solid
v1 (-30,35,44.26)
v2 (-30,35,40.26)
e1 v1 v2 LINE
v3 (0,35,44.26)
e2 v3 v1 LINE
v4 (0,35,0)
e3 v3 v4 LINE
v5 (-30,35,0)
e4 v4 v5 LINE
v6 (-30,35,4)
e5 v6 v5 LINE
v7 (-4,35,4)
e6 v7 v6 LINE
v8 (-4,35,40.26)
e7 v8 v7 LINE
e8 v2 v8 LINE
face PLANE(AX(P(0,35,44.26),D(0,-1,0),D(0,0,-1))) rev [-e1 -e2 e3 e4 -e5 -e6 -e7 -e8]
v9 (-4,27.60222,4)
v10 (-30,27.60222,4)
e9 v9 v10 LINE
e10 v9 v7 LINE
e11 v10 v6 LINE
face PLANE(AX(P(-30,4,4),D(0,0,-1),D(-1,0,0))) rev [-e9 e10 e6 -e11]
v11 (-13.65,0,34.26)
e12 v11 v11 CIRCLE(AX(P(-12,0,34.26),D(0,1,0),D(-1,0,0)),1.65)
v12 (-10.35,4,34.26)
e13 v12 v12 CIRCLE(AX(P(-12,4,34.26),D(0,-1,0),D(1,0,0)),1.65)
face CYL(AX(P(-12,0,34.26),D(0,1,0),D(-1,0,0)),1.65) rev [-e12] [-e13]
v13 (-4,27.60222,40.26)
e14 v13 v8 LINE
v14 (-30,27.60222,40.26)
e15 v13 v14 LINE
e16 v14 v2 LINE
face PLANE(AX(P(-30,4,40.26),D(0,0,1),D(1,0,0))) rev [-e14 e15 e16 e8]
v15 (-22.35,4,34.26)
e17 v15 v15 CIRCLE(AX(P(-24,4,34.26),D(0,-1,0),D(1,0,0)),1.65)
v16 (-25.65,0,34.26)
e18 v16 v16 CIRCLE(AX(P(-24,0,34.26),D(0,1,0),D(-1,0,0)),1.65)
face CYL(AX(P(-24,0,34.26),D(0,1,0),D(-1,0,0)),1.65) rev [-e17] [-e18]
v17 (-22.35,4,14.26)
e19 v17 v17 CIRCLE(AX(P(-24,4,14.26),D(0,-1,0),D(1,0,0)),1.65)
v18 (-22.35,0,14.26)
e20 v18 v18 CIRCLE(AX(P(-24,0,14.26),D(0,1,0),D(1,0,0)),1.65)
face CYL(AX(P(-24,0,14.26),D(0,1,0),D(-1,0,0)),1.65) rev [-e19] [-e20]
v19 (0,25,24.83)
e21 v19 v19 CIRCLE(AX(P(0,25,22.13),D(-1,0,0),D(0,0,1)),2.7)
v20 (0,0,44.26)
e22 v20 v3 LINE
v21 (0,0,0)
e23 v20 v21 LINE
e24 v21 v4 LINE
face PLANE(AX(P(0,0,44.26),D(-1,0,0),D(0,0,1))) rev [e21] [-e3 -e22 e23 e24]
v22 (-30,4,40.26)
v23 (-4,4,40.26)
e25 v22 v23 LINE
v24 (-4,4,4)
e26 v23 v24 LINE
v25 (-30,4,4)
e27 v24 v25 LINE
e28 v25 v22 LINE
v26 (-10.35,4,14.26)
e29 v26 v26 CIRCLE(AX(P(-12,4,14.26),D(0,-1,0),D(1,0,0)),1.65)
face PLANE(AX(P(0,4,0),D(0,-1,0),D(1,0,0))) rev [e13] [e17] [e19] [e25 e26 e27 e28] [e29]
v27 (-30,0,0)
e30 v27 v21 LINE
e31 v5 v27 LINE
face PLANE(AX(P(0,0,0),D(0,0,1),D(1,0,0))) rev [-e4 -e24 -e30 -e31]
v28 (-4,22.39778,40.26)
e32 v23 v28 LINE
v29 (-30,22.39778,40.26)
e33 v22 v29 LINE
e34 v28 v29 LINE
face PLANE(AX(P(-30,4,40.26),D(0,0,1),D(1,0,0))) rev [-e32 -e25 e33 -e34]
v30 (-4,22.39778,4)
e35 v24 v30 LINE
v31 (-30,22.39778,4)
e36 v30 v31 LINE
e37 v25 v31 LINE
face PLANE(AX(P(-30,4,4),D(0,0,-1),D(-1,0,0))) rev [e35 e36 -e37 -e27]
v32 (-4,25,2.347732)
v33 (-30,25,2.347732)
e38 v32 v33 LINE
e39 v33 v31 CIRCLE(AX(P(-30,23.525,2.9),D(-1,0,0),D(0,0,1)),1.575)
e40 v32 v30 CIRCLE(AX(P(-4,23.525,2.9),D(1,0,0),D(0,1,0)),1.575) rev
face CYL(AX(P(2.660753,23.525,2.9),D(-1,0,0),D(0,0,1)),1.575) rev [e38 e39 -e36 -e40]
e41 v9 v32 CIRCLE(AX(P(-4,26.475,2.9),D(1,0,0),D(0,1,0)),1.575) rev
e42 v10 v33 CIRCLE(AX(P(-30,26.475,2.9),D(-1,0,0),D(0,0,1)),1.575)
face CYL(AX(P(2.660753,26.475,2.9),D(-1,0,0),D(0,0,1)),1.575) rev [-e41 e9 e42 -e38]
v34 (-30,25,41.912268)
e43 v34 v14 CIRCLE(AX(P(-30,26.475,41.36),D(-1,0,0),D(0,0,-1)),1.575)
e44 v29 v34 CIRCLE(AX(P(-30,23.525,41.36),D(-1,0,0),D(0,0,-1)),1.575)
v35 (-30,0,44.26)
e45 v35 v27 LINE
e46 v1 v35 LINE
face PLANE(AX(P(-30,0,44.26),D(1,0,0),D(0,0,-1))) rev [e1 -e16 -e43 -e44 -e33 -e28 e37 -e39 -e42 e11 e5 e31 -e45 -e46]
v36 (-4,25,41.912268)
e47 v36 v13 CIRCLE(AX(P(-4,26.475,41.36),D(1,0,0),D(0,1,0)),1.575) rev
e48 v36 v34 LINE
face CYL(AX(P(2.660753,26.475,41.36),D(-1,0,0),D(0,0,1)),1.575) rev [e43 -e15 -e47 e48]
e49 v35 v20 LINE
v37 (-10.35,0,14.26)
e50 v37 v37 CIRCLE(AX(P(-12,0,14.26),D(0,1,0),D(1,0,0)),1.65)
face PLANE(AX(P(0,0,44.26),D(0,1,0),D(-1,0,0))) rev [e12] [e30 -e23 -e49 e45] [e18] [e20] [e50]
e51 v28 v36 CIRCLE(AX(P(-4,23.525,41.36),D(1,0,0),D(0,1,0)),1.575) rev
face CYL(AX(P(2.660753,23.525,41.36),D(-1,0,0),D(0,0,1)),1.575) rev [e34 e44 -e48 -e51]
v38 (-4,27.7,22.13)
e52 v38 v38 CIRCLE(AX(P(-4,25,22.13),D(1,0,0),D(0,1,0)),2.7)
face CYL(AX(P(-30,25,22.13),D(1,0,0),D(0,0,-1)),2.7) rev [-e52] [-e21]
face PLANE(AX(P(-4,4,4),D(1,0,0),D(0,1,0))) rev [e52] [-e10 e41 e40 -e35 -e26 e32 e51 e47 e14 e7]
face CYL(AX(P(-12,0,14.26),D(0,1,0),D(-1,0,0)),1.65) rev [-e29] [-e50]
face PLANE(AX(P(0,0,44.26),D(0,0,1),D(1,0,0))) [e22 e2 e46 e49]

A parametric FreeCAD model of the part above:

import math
import FreeCAD as App
import Part
import Sketcher

V = App.Vector
Q = App.Units.Quantity


def add_polygon(sketch, points):
    """Adds a closed chain of lines whose ends are joined by coincident constraints."""
    first, n = sketch.GeometryCount, len(points)
    for a, b in zip(points, points[1:] + points[:1]):
        sketch.addGeometry(Part.LineSegment(App.Vector(*a, 0), App.Vector(*b, 0)), False)
    for i in range(n):
        sketch.addConstraint(Sketcher.Constraint("Coincident", first + i, 2, first + (i + 1) % n, 1))

doc = App.newDocument("Part")
body = doc.addObject("PartDesign::Body", "Body")

sketch1 = body.newObject("Sketcher::SketchObject", "Sketch")
sketch1.AttachmentSupport = (doc.getObject("XY_Plane"), [""])
sketch1.MapMode = "FlatFace"
add_polygon(sketch1, [(-30, 35), (-30, 0), (0, 0), (0, 35)])
sketch1.addConstraint([
    Sketcher.Constraint("Vertical", 0),
    Sketcher.Constraint("Horizontal", 1),
    Sketcher.Constraint("Vertical", 2),
    Sketcher.Constraint("Horizontal", 3),
    Sketcher.Constraint("Coincident", 1, 2, -1, 1),
    Sketcher.Constraint("DistanceX", 1, 1, 1, 2, Q("30 mm")),
    Sketcher.Constraint("DistanceY", 0, 2, 0, 1, Q("35 mm")),
])
pad1 = body.newObject("PartDesign::Pad", "Pad")
pad1.Profile = sketch1
pad1.Length = 44.26

sketch2 = body.newObject("Sketcher::SketchObject", "Sketch001")
sketch2.AttachmentSupport = (doc.getObject("XZ_Plane"), [""])
sketch2.MapMode = "FlatFace"
sketch2.AttachmentOffset = App.Placement(V(0, 0, -35), App.Rotation())
add_polygon(sketch2, [(-30, 4), (-30, 40), (-4, 40), (-4, 4)])
sketch2.addConstraint([
    Sketcher.Constraint("Vertical", 0),
    Sketcher.Constraint("Horizontal", 1),
    Sketcher.Constraint("Vertical", 2),
    Sketcher.Constraint("Horizontal", 3),
    Sketcher.Constraint("DistanceX", 1, 1, 1, 2, Q("26 mm")),
    Sketcher.Constraint("DistanceX", 0, 2, -1, 1, Q("30 mm")),
    Sketcher.Constraint("DistanceY", -1, 1, 2, 2, Q("4 mm")),
    Sketcher.Constraint("DistanceY", 0, 1, 0, 2, Q("36.26 mm")),
])
pocket1 = body.newObject("PartDesign::Pocket", "Pocket")
pocket1.Profile = sketch2
pocket1.Length = 31
pocket1.Reversed = True

sketch3 = body.newObject("Sketcher::SketchObject", "Sketch002")
sketch3.AttachmentSupport = (doc.getObject("YZ_Plane"), [""])
sketch3.MapMode = "FlatFace"
sketch3.AttachmentOffset = App.Placement(V(0, 0, -30), App.Rotation())
sketch3.addGeometry([
    Part.LineSegment(V(22.4, 4, 0), V(27.6, 4, 0)),
    Part.ArcOfCircle(Part.Circle(V(26.5, 2.9, 0), V(0, 0, 1), 1.6), math.radians(-159), math.radians(44)),
    Part.ArcOfCircle(Part.Circle(V(23.5, 2.9, 0), V(0, 0, 1), 1.6), math.radians(136), math.radians(339)),
    Part.LineSegment(V(27.6, 40.3, 0), V(22.4, 40.3, 0)),
    Part.ArcOfCircle(Part.Circle(V(23.5, 41.4, 0), V(0, 0, 1), 1.6), math.radians(21), math.radians(224)),
    Part.ArcOfCircle(Part.Circle(V(26.5, 41.4, 0), V(0, 0, 1), 1.6), math.radians(-44), math.radians(159)),
], False)
sketch3.addConstraint([
    Sketcher.Constraint("Coincident", 0, 2, 1, 2),
    Sketcher.Constraint("Coincident", 1, 1, 2, 2),
    Sketcher.Constraint("Coincident", 2, 1, 0, 1),
    Sketcher.Constraint("Coincident", 3, 2, 4, 2),
    Sketcher.Constraint("Coincident", 4, 1, 5, 2),
    Sketcher.Constraint("Coincident", 5, 1, 3, 1),
    Sketcher.Constraint("Horizontal", 0),
    Sketcher.Constraint("Horizontal", 3),
    Sketcher.Constraint("Equal", 1, 2),
    Sketcher.Constraint("Equal", 2, 4),
    Sketcher.Constraint("Equal", 4, 5),
    Sketcher.Constraint("Horizontal", 1, 3, 2, 3),
    Sketcher.Constraint("Horizontal", 4, 3, 5, 3),
    Sketcher.Constraint("Vertical", 2, 3, 4, 3),
    Sketcher.Constraint("Vertical", 1, 3, 5, 3),
    Sketcher.Constraint("Vertical", 2, 1, 3, 2),
    Sketcher.Constraint("DistanceY", -1, 1, 0, 2, Q("4 mm")),
    Sketcher.Constraint("DistanceX", -1, 1, 1, 1, Q("25 mm")),
    Sketcher.Constraint("Radius", 1, Q("1.575 mm")),
    Sketcher.Constraint("DistanceY", -1, 1, 1, 3, Q("2.9 mm")),
    Sketcher.Constraint("DistanceY", -1, 1, 4, 3, Q("41.36 mm")),
    Sketcher.Constraint("DistanceX", 2, 3, 1, 3, Q("2.95 mm")),
])
pocket2 = body.newObject("PartDesign::Pocket", "Pocket001")
pocket2.Profile = sketch3
pocket2.Length = 26
pocket2.Reversed = True

sketch4 = body.newObject("Sketcher::SketchObject", "Sketch003")
sketch4.AttachmentSupport = (doc.getObject("YZ_Plane"), [""])
sketch4.MapMode = "FlatFace"
sketch4.addGeometry(Part.Circle(V(25, 22.1, 0), V(0, 0, 1), 2.7), False)
sketch4.addConstraint([
    Sketcher.Constraint("Diameter", 0, Q("5.4 mm")),
    Sketcher.Constraint("DistanceX", -1, 1, 0, 3, Q("25 mm")),
    Sketcher.Constraint("DistanceY", -1, 1, 0, 3, Q("22.13 mm")),
])
pocket3 = body.newObject("PartDesign::Pocket", "Pocket002")
pocket3.Profile = sketch4
pocket3.Type = "ThroughAll"
pocket3.Midplane = True

sketch5 = body.newObject("Sketcher::SketchObject", "Sketch004")
sketch5.AttachmentSupport = (doc.getObject("XZ_Plane"), [""])
sketch5.MapMode = "FlatFace"
sketch5.AttachmentOffset = App.Placement(V(0, 0, -4), App.Rotation())
sketch5.addGeometry([
    Part.Circle(V(-24, 34.3, 0), V(0, 0, 1), 1.6),
    Part.Circle(V(-12, 34.3, 0), V(0, 0, 1), 1.6),
    Part.Circle(V(-12, 14.3, 0), V(0, 0, 1), 1.6),
    Part.Circle(V(-24, 14.3, 0), V(0, 0, 1), 1.6),
], False)
sketch5.addConstraint([
    Sketcher.Constraint("Equal", 0, 1),
    Sketcher.Constraint("Equal", 1, 2),
    Sketcher.Constraint("Equal", 2, 3),
    Sketcher.Constraint("Horizontal", 0, 3, 1, 3),
    Sketcher.Constraint("Horizontal", 2, 3, 3, 3),
    Sketcher.Constraint("Vertical", 1, 3, 2, 3),
    Sketcher.Constraint("Vertical", 0, 3, 3, 3),
    Sketcher.Constraint("Diameter", 0, Q("3.3 mm")),
    Sketcher.Constraint("DistanceX", 0, 3, -1, 1, Q("24 mm")),
    Sketcher.Constraint("DistanceX", 1, 3, -1, 1, Q("12 mm")),
    Sketcher.Constraint("DistanceY", 2, 3, 1, 3, Q("20 mm")),
    Sketcher.Constraint("DistanceY", -1, 1, 0, 3, Q("34.26 mm")),
])
pocket4 = body.newObject("PartDesign::Pocket", "Pocket003")
pocket4.Profile = sketch5
pocket4.Type = "ThroughAll"
pocket4.Midplane = True

doc.recompute()
